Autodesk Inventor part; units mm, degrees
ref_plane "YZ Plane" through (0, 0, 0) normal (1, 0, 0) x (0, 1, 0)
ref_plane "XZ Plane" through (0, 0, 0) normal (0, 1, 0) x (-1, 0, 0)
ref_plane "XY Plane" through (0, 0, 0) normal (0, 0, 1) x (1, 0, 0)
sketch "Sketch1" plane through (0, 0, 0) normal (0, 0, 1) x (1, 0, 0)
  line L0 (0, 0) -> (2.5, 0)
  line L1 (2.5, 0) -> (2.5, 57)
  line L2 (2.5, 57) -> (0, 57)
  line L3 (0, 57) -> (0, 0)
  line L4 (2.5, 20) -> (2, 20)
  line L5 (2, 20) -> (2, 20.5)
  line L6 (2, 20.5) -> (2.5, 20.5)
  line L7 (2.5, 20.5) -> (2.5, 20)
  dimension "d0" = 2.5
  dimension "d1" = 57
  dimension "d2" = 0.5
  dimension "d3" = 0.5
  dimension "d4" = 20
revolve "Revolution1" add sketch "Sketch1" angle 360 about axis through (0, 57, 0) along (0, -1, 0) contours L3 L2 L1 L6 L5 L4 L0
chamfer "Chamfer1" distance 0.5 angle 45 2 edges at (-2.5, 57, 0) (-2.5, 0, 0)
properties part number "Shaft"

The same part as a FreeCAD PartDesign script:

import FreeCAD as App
import Part
import Sketcher
Q = App.Units.Quantity


def edges_at(feature, points):
    """Names of the edges that pass closest to the given points."""
    edges = feature.Shape.Edges
    near = lambda p: min(range(len(edges)), key=lambda i: edges[i].distToShape(Part.Vertex(*p))[0])
    return sorted({f"Edge{near(p) + 1}" for p in points})


def add_polygon(sketch, points):
    """Adds a closed chain of lines whose ends are joined by coincident constraints."""
    first, n = sketch.GeometryCount, len(points)
    for a, b in zip(points, points[1:] + points[:1]):
        sketch.addGeometry(Part.LineSegment(App.Vector(*a, 0), App.Vector(*b, 0)), False)
    for i in range(n):
        sketch.addConstraint(Sketcher.Constraint("Coincident", first + i, 2, first + (i + 1) % n, 1))

doc = App.newDocument("Part")
body = doc.addObject("PartDesign::Body", "Body")

sketch1 = body.newObject("Sketcher::SketchObject", "Sketch")
sketch1.AttachmentSupport = (doc.getObject("XY_Plane"), [""])
sketch1.MapMode = "FlatFace"
add_polygon(sketch1, [(0, 57), (0, 0), (2.5, 0), (2.5, 20), (2, 20), (2, 20.5), (2.5, 20.5), (2.5, 57)])
sketch1.addConstraint([
    Sketcher.Constraint("Vertical", 0),
    Sketcher.Constraint("Horizontal", 1),
    Sketcher.Constraint("Vertical", 2),
    Sketcher.Constraint("Horizontal", 3),
    Sketcher.Constraint("Vertical", 4),
    Sketcher.Constraint("Horizontal", 5),
    Sketcher.Constraint("Vertical", 6),
    Sketcher.Constraint("Horizontal", 7),
    Sketcher.Constraint("Coincident", 0, 2, -1, 1),
    Sketcher.Constraint("Vertical", 2, 2, 5, 2),
    Sketcher.Constraint("Equal", 5, 4),
    Sketcher.Constraint("DistanceY", 0, 2, 0, 1, Q("57 mm")),
    Sketcher.Constraint("DistanceY", 2, 1, 2, 2, Q("20 mm")),
    Sketcher.Constraint("DistanceX", 1, 1, 1, 2, Q("2.5 mm")),
    Sketcher.Constraint("DistanceX", 3, 2, 3, 1, Q("0.5 mm")),
])
revolution = body.newObject("PartDesign::Revolution", "Revolution")
revolution.Profile = sketch1
revolution.ReferenceAxis = (sketch1, ["V_Axis"])
revolution.Angle = 360
doc.recompute()

chamfer = body.newObject("PartDesign::Chamfer", "Chamfer")
chamfer.Base = (revolution, edges_at(revolution, [(-2.5, 57, 0), (-2.5, 0, 0)]))
chamfer.Size = 0.5

doc.recompute()
